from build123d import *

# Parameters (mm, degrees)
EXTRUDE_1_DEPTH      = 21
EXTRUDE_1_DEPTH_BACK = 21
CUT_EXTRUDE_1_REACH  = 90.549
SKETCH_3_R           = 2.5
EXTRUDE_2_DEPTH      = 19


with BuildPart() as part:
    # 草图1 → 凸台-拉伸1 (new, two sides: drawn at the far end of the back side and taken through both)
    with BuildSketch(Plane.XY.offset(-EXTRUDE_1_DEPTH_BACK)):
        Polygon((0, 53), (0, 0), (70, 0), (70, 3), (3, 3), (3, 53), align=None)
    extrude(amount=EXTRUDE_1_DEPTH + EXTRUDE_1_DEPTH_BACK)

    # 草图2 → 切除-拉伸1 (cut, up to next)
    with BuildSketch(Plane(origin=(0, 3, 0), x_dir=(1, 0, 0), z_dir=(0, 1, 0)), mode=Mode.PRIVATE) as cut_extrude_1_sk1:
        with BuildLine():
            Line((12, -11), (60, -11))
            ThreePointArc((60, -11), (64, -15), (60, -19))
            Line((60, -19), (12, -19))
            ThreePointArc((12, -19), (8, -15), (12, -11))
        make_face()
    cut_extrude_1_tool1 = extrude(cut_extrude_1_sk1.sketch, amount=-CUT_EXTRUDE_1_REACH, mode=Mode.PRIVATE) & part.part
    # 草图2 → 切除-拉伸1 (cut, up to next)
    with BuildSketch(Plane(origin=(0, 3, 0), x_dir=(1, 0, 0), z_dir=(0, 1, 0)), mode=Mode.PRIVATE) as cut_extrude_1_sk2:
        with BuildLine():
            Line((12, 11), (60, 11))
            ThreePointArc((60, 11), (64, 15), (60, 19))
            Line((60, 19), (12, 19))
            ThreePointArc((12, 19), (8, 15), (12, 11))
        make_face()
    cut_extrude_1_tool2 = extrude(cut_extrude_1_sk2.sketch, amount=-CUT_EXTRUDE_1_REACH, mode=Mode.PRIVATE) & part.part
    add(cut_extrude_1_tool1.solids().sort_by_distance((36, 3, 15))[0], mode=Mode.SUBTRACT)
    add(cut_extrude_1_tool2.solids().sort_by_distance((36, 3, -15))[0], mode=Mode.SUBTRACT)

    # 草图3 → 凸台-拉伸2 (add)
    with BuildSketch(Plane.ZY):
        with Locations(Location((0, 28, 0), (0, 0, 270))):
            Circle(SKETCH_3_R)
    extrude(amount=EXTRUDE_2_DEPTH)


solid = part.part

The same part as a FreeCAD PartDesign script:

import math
import FreeCAD as App
import Part
import Sketcher
from FreeCAD import Vector


def add_polygon(sketch, points):
    """Adds a closed chain of lines whose ends are joined by coincident constraints."""
    first, n = sketch.GeometryCount, len(points)
    for a, b in zip(points, points[1:] + points[:1]):
        sketch.addGeometry(Part.LineSegment(App.Vector(*a, 0), App.Vector(*b, 0)), False)
    for i in range(n):
        sketch.addConstraint(Sketcher.Constraint("Coincident", first + i, 2, first + (i + 1) % n, 1))

doc = App.newDocument("Part")
body = doc.addObject("PartDesign::Body", "Body")

sketch1 = body.newObject("Sketcher::SketchObject", "Sketch")
sketch1.AttachmentSupport = (doc.getObject("XY_Plane"), [""])
sketch1.MapMode = "FlatFace"
add_polygon(sketch1, [(0, 53), (0, 0), (70, 0), (70, 3), (3, 3), (3, 53)])
sketch1.addConstraint(Sketcher.Constraint("Vertical", 0))
sketch1.addConstraint(Sketcher.Constraint("Horizontal", 1))
sketch1.addConstraint(Sketcher.Constraint("Vertical", 2))
sketch1.addConstraint(Sketcher.Constraint("Horizontal", 3))
sketch1.addConstraint(Sketcher.Constraint("Vertical", 4))
sketch1.addConstraint(Sketcher.Constraint("Horizontal", 5))
sketch1.addConstraint(Sketcher.Constraint("Coincident", 0, 2, -1, 1))
sketch1.addConstraint(Sketcher.Constraint("Equal", 5, 2))
sketch1.addConstraint(Sketcher.Constraint("DistanceX", 1, 1, 1, 2, 70.0))
sketch1.addConstraint(Sketcher.Constraint("DistanceX", 3, 2, 3, 1, 67.0))
sketch1.addConstraint(Sketcher.Constraint("DistanceY", 0, 2, 0, 1, 53.0))
pad1 = body.newObject("PartDesign::Pad", "Pad")
pad1.Profile = sketch1
pad1.Type = "TwoLengths"
pad1.Length = 21
pad1.Length2 = 21

sketch2 = body.newObject("Sketcher::SketchObject", "Sketch001")
sketch2.AttachmentSupport = (doc.getObject("XZ_Plane"), [""])
sketch2.MapMode = "FlatFace"
sketch2.AttachmentOffset = App.Placement(Vector(0, 0, -3), App.Rotation())
sketch2.addGeometry(Part.LineSegment(Vector(60, 11, 0), Vector(12, 11, 0)), False)
sketch2.addGeometry(Part.ArcOfCircle(Part.Circle(Vector(12, 15, 0), Vector(0, 0, 1), 4), math.radians(90), math.radians(270)), False)
sketch2.addGeometry(Part.LineSegment(Vector(12, 19, 0), Vector(60, 19, 0)), False)
sketch2.addGeometry(Part.ArcOfCircle(Part.Circle(Vector(60, 15, 0), Vector(0, 0, 1), 4), math.radians(-90), math.radians(90)), False)
sketch2.addConstraint(Sketcher.Constraint("Tangent", 0, 2, 1, 2))
sketch2.addConstraint(Sketcher.Constraint("Tangent", 1, 1, 2, 1))
sketch2.addConstraint(Sketcher.Constraint("Tangent", 2, 2, 3, 2))
sketch2.addConstraint(Sketcher.Constraint("Tangent", 3, 1, 0, 1))
sketch2.addConstraint(Sketcher.Constraint("Horizontal", 0))
sketch2.addConstraint(Sketcher.Constraint("Horizontal", 2))
sketch2.addConstraint(Sketcher.Constraint("Radius", 1, 4.0))
sketch2.addConstraint(Sketcher.Constraint("DistanceX", 0, 2, 0, 1, 48.0))
sketch2.addConstraint(Sketcher.Constraint("DistanceX", -1, 1, 1, 3, 12.0))
sketch2.addConstraint(Sketcher.Constraint("DistanceY", -1, 1, 1, 3, 15.0))
pocket1 = body.newObject("PartDesign::Pocket", "Pocket")
pocket1.Profile = sketch2
pocket1.Type = "UpToFirst"
pocket1.Reversed = True

sketch3 = body.newObject("Sketcher::SketchObject", "Sketch002")
sketch3.AttachmentSupport = (doc.getObject("XZ_Plane"), [""])
sketch3.MapMode = "FlatFace"
sketch3.AttachmentOffset = App.Placement(Vector(0, 0, -3), App.Rotation())
sketch3.addGeometry(Part.LineSegment(Vector(12, -11, 0), Vector(60, -11, 0)), False)
sketch3.addGeometry(Part.ArcOfCircle(Part.Circle(Vector(60, -15, 0), Vector(0, 0, 1), 4), math.radians(-90), math.radians(90)), False)
sketch3.addGeometry(Part.LineSegment(Vector(60, -19, 0), Vector(12, -19, 0)), False)
sketch3.addGeometry(Part.ArcOfCircle(Part.Circle(Vector(12, -15, 0), Vector(0, 0, 1), 4), math.radians(90), math.radians(270)), False)
sketch3.addConstraint(Sketcher.Constraint("Tangent", 0, 2, 1, 2))
sketch3.addConstraint(Sketcher.Constraint("Tangent", 1, 1, 2, 1))
sketch3.addConstraint(Sketcher.Constraint("Tangent", 2, 2, 3, 2))
sketch3.addConstraint(Sketcher.Constraint("Tangent", 3, 1, 0, 1))
sketch3.addConstraint(Sketcher.Constraint("Horizontal", 0))
sketch3.addConstraint(Sketcher.Constraint("Horizontal", 2))
sketch3.addConstraint(Sketcher.Constraint("Radius", 1, 4.0))
sketch3.addConstraint(Sketcher.Constraint("DistanceX", 0, 1, 0, 2, 48.0))
sketch3.addConstraint(Sketcher.Constraint("DistanceX", -1, 1, 1, 3, 60.0))
sketch3.addConstraint(Sketcher.Constraint("DistanceY", 1, 3, -1, 1, 15.0))
pocket2 = body.newObject("PartDesign::Pocket", "Pocket001")
pocket2.Profile = sketch3
pocket2.Type = "UpToFirst"
pocket2.Reversed = True

sketch4 = body.newObject("Sketcher::SketchObject", "Sketch003")
sketch4.AttachmentSupport = (doc.getObject("YZ_Plane"), [""])
sketch4.MapMode = "FlatFace"
sketch4.addGeometry(Part.Circle(Vector(28, 0, 0), Vector(0, 0, 1), 2.5), False)
sketch4.addConstraint(Sketcher.Constraint("PointOnObject", 0, 3, -1))
sketch4.addConstraint(Sketcher.Constraint("Diameter", 0, 5.0))
sketch4.addConstraint(Sketcher.Constraint("DistanceX", -1, 1, 0, 3, 28.0))
pad2 = body.newObject("PartDesign::Pad", "Pad001")
pad2.Profile = sketch4
pad2.Length = 19
pad2.Reversed = True

doc.recompute()
